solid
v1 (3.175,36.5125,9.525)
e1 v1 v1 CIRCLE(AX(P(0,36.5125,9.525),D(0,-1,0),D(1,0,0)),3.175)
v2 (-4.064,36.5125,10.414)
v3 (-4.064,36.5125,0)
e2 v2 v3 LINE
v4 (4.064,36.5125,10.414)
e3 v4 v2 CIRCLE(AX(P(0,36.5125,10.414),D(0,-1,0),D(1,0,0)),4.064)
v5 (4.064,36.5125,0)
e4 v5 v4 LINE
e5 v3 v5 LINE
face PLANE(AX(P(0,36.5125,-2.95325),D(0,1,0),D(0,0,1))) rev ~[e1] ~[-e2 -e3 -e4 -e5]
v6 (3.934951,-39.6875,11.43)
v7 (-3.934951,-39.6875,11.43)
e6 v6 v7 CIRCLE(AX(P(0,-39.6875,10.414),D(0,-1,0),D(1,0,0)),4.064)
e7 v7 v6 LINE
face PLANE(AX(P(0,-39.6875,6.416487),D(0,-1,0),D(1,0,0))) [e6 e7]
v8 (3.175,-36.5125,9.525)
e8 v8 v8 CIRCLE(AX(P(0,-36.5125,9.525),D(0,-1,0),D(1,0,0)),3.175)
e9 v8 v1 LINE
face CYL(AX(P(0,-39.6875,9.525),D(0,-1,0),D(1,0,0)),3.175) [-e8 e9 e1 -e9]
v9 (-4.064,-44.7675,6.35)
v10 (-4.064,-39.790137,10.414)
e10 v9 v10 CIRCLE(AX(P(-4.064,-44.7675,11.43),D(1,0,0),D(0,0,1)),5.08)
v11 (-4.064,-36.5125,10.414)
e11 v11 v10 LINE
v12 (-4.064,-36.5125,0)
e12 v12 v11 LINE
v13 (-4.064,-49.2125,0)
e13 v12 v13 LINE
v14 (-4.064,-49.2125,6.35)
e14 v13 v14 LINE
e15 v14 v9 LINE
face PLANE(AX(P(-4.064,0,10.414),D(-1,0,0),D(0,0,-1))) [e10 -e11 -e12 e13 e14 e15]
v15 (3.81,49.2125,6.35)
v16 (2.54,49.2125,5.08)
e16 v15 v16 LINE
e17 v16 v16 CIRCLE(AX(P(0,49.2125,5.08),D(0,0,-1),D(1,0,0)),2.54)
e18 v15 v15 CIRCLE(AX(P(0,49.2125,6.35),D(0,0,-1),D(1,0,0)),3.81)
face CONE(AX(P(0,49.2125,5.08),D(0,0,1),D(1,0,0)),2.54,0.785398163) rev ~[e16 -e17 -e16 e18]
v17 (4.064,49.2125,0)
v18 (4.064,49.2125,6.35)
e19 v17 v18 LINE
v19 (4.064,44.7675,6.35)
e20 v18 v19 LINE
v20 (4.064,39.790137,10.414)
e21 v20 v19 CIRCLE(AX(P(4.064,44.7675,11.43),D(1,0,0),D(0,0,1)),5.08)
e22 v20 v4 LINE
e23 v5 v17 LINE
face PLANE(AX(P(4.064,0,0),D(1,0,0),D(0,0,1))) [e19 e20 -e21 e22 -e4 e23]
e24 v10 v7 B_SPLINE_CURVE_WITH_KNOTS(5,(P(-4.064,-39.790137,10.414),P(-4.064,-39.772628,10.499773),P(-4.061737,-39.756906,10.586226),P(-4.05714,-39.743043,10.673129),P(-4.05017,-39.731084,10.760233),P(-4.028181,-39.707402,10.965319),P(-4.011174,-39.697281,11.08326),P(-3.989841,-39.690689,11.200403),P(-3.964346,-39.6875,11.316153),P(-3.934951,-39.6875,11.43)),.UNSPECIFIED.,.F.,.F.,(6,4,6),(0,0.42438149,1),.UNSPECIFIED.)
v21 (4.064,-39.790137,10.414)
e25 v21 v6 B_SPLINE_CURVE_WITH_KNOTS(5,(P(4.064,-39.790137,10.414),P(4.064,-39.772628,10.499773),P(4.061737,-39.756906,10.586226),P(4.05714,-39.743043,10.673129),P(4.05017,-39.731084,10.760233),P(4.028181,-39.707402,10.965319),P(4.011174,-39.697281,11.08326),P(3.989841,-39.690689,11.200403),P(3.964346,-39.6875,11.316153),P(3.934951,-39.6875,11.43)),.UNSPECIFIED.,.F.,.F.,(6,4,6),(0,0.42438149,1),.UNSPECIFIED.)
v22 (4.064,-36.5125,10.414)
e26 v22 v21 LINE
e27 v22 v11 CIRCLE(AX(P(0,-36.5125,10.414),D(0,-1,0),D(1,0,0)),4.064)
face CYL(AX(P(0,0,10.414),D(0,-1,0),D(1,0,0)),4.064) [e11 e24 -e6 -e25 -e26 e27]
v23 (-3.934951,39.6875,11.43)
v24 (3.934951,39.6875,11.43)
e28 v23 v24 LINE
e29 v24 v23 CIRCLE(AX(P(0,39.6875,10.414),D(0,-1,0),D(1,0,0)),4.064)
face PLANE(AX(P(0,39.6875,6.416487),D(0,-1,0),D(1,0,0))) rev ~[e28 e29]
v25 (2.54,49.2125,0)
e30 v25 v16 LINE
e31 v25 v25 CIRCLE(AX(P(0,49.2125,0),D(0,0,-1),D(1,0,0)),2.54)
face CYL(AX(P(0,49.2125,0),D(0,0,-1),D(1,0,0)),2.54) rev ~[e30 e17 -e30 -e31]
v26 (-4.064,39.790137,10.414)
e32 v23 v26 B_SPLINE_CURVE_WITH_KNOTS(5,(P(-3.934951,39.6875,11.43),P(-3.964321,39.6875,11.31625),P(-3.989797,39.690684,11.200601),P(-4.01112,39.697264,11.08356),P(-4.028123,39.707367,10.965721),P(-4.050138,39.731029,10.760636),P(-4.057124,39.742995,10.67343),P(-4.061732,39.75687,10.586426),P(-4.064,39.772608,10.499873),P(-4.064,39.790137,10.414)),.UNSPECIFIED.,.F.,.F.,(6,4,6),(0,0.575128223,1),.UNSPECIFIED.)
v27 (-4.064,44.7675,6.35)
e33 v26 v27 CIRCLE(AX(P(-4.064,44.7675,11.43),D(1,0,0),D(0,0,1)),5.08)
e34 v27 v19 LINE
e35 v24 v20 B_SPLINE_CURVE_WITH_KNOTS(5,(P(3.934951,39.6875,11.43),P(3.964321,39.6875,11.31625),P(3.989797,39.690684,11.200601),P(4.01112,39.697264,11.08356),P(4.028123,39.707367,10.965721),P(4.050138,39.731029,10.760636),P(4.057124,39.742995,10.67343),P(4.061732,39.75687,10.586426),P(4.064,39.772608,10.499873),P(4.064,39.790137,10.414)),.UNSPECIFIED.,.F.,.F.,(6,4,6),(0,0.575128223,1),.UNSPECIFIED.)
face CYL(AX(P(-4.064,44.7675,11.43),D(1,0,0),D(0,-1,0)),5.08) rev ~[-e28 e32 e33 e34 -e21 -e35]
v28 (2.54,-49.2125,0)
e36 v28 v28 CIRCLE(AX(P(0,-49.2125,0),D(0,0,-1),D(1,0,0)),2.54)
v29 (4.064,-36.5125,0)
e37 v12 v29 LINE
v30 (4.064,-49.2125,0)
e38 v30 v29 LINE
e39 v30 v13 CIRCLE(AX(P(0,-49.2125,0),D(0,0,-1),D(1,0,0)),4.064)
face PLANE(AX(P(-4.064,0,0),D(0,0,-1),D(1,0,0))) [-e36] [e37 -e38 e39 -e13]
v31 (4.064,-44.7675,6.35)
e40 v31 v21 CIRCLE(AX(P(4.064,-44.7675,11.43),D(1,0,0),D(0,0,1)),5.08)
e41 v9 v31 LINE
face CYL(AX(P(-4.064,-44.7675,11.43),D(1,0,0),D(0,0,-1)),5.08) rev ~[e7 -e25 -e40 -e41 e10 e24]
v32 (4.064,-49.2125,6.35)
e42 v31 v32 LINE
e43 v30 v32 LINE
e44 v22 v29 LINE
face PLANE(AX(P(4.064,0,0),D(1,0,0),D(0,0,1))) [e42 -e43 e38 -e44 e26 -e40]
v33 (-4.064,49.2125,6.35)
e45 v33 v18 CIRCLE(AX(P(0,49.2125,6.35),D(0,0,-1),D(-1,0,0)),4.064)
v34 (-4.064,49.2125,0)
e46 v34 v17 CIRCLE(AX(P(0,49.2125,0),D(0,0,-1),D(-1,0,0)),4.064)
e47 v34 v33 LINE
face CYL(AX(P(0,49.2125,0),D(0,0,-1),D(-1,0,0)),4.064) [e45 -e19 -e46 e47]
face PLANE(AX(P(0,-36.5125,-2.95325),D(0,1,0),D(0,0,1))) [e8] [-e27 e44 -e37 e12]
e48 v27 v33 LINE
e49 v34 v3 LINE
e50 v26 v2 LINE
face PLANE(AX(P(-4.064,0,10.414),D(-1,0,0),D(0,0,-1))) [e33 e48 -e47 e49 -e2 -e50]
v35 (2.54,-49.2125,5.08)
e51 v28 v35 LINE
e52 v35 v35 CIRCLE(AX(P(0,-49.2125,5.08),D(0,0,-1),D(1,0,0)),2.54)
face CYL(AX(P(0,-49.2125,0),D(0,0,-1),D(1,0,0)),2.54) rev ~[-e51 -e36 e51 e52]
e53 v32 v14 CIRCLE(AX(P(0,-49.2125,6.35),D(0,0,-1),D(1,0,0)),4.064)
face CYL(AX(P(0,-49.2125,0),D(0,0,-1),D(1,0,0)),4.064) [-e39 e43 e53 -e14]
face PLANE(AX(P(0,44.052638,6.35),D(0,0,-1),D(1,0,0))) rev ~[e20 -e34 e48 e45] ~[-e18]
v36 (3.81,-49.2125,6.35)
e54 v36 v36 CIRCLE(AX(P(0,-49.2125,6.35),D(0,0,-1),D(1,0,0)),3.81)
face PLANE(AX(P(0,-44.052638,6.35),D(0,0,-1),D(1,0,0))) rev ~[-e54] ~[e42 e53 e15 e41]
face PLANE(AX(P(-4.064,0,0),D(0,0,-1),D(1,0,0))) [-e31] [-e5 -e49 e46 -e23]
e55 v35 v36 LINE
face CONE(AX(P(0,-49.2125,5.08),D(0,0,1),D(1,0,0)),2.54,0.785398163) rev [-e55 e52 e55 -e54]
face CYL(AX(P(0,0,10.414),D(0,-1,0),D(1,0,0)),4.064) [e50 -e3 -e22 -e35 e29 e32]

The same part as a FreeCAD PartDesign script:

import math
import FreeCAD as App
import Part
import Sketcher
from FreeCAD import Vector
Q = App.Units.Quantity


def edges_at(feature, points):
    """Names of the edges that pass closest to the given points."""
    edges = feature.Shape.Edges
    near = lambda p: min(range(len(edges)), key=lambda i: edges[i].distToShape(Part.Vertex(*p))[0])
    return sorted({f"Edge{near(p) + 1}" for p in points})


def add_polygon(sketch, points):
    """Adds a closed chain of lines whose ends are joined by coincident constraints."""
    first, n = sketch.GeometryCount, len(points)
    for a, b in zip(points, points[1:] + points[:1]):
        sketch.addGeometry(Part.LineSegment(App.Vector(*a, 0), App.Vector(*b, 0)), False)
    for i in range(n):
        sketch.addConstraint(Sketcher.Constraint("Coincident", first + i, 2, first + (i + 1) % n, 1))

doc = App.newDocument("Part")
body = doc.addObject("PartDesign::Body", "Body")
body.AllowCompound = True

# Sketch on XZ plane
sketch1 = body.newObject("Sketcher::SketchObject", "Sketch")
sketch1.AttachmentSupport = (doc.getObject("XZ_Plane"), [""])
sketch1.MapMode = "FlatFace"
sketch1.addGeometry(Part.LineSegment(Vector(4.064, 0, 0), Vector(4.064, 10.414, 0)), False)
sketch1.addGeometry(Part.ArcOfCircle(Part.Circle(Vector(0, 10.414, 0), Vector(0, 0, 1), 4.064), math.radians(0), math.radians(180)), False)
sketch1.addGeometry(Part.LineSegment(Vector(-4.064, 10.414, 0), Vector(-4.064, 0, 0)), False)
sketch1.addGeometry(Part.LineSegment(Vector(-4.064, 0, 0), Vector(4.064, 0, 0)), False)
sketch1.addGeometry(Part.Circle(Vector(0, 9.525, 0), Vector(0, 0, 1), 3.175), False)
sketch1.addConstraint(Sketcher.Constraint("Tangent", 0, 2, 1, 1))
sketch1.addConstraint(Sketcher.Constraint("Tangent", 1, 2, 2, 1))
sketch1.addConstraint(Sketcher.Constraint("Coincident", 2, 2, 3, 1))
sketch1.addConstraint(Sketcher.Constraint("Coincident", 3, 2, 0, 1))
sketch1.addConstraint(Sketcher.Constraint("Vertical", 0))
sketch1.addConstraint(Sketcher.Constraint("Vertical", 2))
sketch1.addConstraint(Sketcher.Constraint("Horizontal", 3))
sketch1.addConstraint(Sketcher.Constraint("Symmetric", 2, 2, 3, 2, -1, 1))
sketch1.addConstraint(Sketcher.Constraint("PointOnObject", 4, 3, -2))
sketch1.addConstraint(Sketcher.Constraint("Diameter", 4, Q("0.25 in")))
sketch1.addConstraint(Sketcher.Constraint("Radius", 1, Q("0.16 in")))
sketch1.addConstraint(Sketcher.Constraint("DistanceY", 0, 1, 0, 2, Q("0.41 in")))
sketch1.addConstraint(Sketcher.Constraint("DistanceY", -1, 1, 4, 3, Q("0.375 in")))
pad1 = body.newObject("PartDesign::Pad", "Pad")
pad1.Profile = sketch1
pad1.Length = Q("3.125 in")
pad1.Midplane = True

# Sketch on YZ plane
sketch2 = body.newObject("Sketcher::SketchObject", "Sketch001")
sketch2.AttachmentSupport = (doc.getObject("YZ_Plane"), [""])
sketch2.MapMode = "FlatFace"
add_polygon(sketch2, [(-36.5125, 15.232606), (-36.5125, -2.95325), (36.5125, -2.95325), (36.5125, 15.232606)])  # lines 0-3
sketch2.addConstraint(Sketcher.Constraint("Vertical", 0))
sketch2.addConstraint(Sketcher.Constraint("Horizontal", 1))
sketch2.addConstraint(Sketcher.Constraint("Vertical", 2))
sketch2.addConstraint(Sketcher.Constraint("Horizontal", 3))
sketch2.addConstraint(Sketcher.Constraint("DistanceX", 1, 1, 1, 2, Q("2.875 in")))
sketch2.addConstraint(Sketcher.Constraint("DistanceX", 0, 2, -1, 1, Q("1.4375 in")))
sketch2.addConstraint(Sketcher.Constraint("DistanceY", 0, 2, 0, 1, Q("18.185855 mm")))
sketch2.addConstraint(Sketcher.Constraint("DistanceY", 0, 2, -1, 1, Q("2.95325 mm")))
pocket1 = body.newObject("PartDesign::Pocket", "Pocket")
pocket1.Profile = sketch2
pocket1.Length = Q("1 in")
pocket1.Midplane = True

# Sketch on XZ plane
sketch3 = body.newObject("Sketcher::SketchObject", "Sketch002")
sketch3.AttachmentSupport = (doc.getObject("XZ_Plane"), [""])
sketch3.MapMode = "FlatFace"
sketch3.AttachmentOffset = App.Placement(Vector(0, 0, 1.5625 * 25.4), App.Rotation())
sketch3.addGeometry(Part.Circle(Vector(0, 9.525, 0), Vector(0, 0, 1), 3.175), False)
sketch3.addConstraint(Sketcher.Constraint("PointOnObject", 0, 3, -2))
sketch3.addConstraint(Sketcher.Constraint("Diameter", 0, Q("0.25 in")))
sketch3.addConstraint(Sketcher.Constraint("DistanceY", -1, 1, 0, 3, Q("0.375 in")))
pad2 = body.newObject("PartDesign::Pad", "Pad001")
pad2.Profile = sketch3
pad2.Length = Q("3.125 in")
pad2.Reversed = True

# Sketch on YZ plane
sketch4 = body.newObject("Sketcher::SketchObject", "Sketch003")
sketch4.AttachmentSupport = (doc.getObject("YZ_Plane"), [""])
sketch4.MapMode = "FlatFace"
add_polygon(sketch4, [(-35.56, 4.445), (-35.56, 1.27), (-26.035, 1.27), (-26.035, 4.445)])  # lines 0-3
add_polygon(sketch4, [(26.035, 4.445), (26.035, 1.27), (35.56, 1.27), (35.56, 4.445)])  # lines 4-7
sketch4.addConstraint(Sketcher.Constraint("Vertical", 0))
sketch4.addConstraint(Sketcher.Constraint("Horizontal", 1))
sketch4.addConstraint(Sketcher.Constraint("Vertical", 2))
sketch4.addConstraint(Sketcher.Constraint("Horizontal", 3))
sketch4.addConstraint(Sketcher.Constraint("Vertical", 4))
sketch4.addConstraint(Sketcher.Constraint("Horizontal", 5))
sketch4.addConstraint(Sketcher.Constraint("Vertical", 6))
sketch4.addConstraint(Sketcher.Constraint("Horizontal", 7))
sketch4.addConstraint(Sketcher.Constraint("Symmetric", 1, 2, 4, 2, -2))
sketch4.addConstraint(Sketcher.Constraint("Symmetric", 3, 2, 6, 2, -2))
sketch4.addConstraint(Sketcher.Constraint("DistanceX", 0, 2, -1, 1, Q("1.4 in")))
sketch4.addConstraint(Sketcher.Constraint("DistanceX", 1, 1, 1, 2, Q("0.375 in")))
sketch4.addConstraint(Sketcher.Constraint("DistanceY", 0, 2, 0, 1, Q("0.125 in")))
sketch4.addConstraint(Sketcher.Constraint("DistanceY", -1, 1, 0, 2, Q("0.05 in")))
pocket2 = body.newObject("PartDesign::Pocket", "Pocket001")
pocket2.Profile = sketch4
pocket2.Length = Q("1 in")
pocket2.Midplane = True

# Sketch on XY plane
sketch5 = body.newObject("Sketcher::SketchObject", "Sketch004")
sketch5.AttachmentSupport = (doc.getObject("XY_Plane"), [""])
sketch5.MapMode = "FlatFace"
sketch5.addGeometry(Part.LineSegment(Vector(-4.064, -36.5125, 0), Vector(4.064, -36.5125, 0)), False)
sketch5.addGeometry(Part.LineSegment(Vector(4.064, -36.5125, 0), Vector(4.064, -49.2125, 0)), False)
sketch5.addGeometry(Part.ArcOfCircle(Part.Circle(Vector(0, -49.2125, 0), Vector(0, 0, 1), 4.064), math.radians(180), math.radians(360)), False)
sketch5.addGeometry(Part.LineSegment(Vector(-4.064, -49.2125, 0), Vector(-4.064, -36.5125, 0)), False)
sketch5.addGeometry(Part.Circle(Vector(0, -49.2125, 0), Vector(0, 0, 1), 2.54), False)
sketch5.addGeometry(Part.ArcOfCircle(Part.Circle(Vector(0, 49.2125, 0), Vector(0, 0, 1), 4.064), math.radians(0), math.radians(180)), False)
sketch5.addGeometry(Part.LineSegment(Vector(4.064, 49.2125, 0), Vector(4.064, 36.5125, 0)), False)
sketch5.addGeometry(Part.LineSegment(Vector(4.064, 36.5125, 0), Vector(-4.064, 36.5125, 0)), False)
sketch5.addGeometry(Part.LineSegment(Vector(-4.064, 36.5125, 0), Vector(-4.064, 49.2125, 0)), False)
sketch5.addGeometry(Part.Circle(Vector(0, 49.2125, 0), Vector(0, 0, 1), 2.54), False)
sketch5.addConstraint(Sketcher.Constraint("Coincident", 0, 2, 1, 1))
sketch5.addConstraint(Sketcher.Constraint("Tangent", 1, 2, 2, 2))
sketch5.addConstraint(Sketcher.Constraint("Tangent", 2, 1, 3, 1))
sketch5.addConstraint(Sketcher.Constraint("Coincident", 3, 2, 0, 1))
sketch5.addConstraint(Sketcher.Constraint("Tangent", 5, 1, 6, 1))
sketch5.addConstraint(Sketcher.Constraint("Coincident", 6, 2, 7, 1))
sketch5.addConstraint(Sketcher.Constraint("Coincident", 7, 2, 8, 1))
sketch5.addConstraint(Sketcher.Constraint("Tangent", 8, 2, 5, 2))
sketch5.addConstraint(Sketcher.Constraint("Horizontal", 0))
sketch5.addConstraint(Sketcher.Constraint("Vertical", 1))
sketch5.addConstraint(Sketcher.Constraint("Vertical", 3))
sketch5.addConstraint(Sketcher.Constraint("Vertical", 6))
sketch5.addConstraint(Sketcher.Constraint("Horizontal", 7))
sketch5.addConstraint(Sketcher.Constraint("Vertical", 8))
sketch5.addConstraint(Sketcher.Constraint("Coincident", 4, 3, 2, 3))
sketch5.addConstraint(Sketcher.Constraint("Coincident", 9, 3, 5, 3))
sketch5.addConstraint(Sketcher.Constraint("Equal", 2, 5))
sketch5.addConstraint(Sketcher.Constraint("Equal", 4, 9))
sketch5.addConstraint(Sketcher.Constraint("Symmetric", 2, 3, 5, 3, -1, 1))
sketch5.addConstraint(Sketcher.Constraint("Symmetric", 0, 2, 6, 2, -1))
sketch5.addConstraint(Sketcher.Constraint("Diameter", 4, Q("0.2 in")))
sketch5.addConstraint(Sketcher.Constraint("Radius", 2, Q("0.16 in")))
sketch5.addConstraint(Sketcher.Constraint("DistanceY", 1, 2, 1, 1, Q("0.5 in")))
sketch5.addConstraint(Sketcher.Constraint("DistanceY", 2, 3, -1, 1, Q("1.9375 in")))
pad3 = body.newObject("PartDesign::Pad", "Pad002")
pad3.Profile = sketch5
pad3.Length = Q("0.25 in")
doc.recompute()

fillet = body.newObject("PartDesign::Fillet", "Fillet")
fillet.Base = (pad3, edges_at(pad3, [(0, 39.688, 6.35), (0, -39.688, 6.35)]))
fillet.Radius = Q("0.2 in")
doc.recompute()

chamfer = body.newObject("PartDesign::Chamfer", "Chamfer")
chamfer.Base = (fillet, edges_at(fillet, [(-2.54, -49.212, 6.35), (-2.54, 49.212, 6.35)]))
chamfer.Size = Q("0.05 in")

doc.recompute()
